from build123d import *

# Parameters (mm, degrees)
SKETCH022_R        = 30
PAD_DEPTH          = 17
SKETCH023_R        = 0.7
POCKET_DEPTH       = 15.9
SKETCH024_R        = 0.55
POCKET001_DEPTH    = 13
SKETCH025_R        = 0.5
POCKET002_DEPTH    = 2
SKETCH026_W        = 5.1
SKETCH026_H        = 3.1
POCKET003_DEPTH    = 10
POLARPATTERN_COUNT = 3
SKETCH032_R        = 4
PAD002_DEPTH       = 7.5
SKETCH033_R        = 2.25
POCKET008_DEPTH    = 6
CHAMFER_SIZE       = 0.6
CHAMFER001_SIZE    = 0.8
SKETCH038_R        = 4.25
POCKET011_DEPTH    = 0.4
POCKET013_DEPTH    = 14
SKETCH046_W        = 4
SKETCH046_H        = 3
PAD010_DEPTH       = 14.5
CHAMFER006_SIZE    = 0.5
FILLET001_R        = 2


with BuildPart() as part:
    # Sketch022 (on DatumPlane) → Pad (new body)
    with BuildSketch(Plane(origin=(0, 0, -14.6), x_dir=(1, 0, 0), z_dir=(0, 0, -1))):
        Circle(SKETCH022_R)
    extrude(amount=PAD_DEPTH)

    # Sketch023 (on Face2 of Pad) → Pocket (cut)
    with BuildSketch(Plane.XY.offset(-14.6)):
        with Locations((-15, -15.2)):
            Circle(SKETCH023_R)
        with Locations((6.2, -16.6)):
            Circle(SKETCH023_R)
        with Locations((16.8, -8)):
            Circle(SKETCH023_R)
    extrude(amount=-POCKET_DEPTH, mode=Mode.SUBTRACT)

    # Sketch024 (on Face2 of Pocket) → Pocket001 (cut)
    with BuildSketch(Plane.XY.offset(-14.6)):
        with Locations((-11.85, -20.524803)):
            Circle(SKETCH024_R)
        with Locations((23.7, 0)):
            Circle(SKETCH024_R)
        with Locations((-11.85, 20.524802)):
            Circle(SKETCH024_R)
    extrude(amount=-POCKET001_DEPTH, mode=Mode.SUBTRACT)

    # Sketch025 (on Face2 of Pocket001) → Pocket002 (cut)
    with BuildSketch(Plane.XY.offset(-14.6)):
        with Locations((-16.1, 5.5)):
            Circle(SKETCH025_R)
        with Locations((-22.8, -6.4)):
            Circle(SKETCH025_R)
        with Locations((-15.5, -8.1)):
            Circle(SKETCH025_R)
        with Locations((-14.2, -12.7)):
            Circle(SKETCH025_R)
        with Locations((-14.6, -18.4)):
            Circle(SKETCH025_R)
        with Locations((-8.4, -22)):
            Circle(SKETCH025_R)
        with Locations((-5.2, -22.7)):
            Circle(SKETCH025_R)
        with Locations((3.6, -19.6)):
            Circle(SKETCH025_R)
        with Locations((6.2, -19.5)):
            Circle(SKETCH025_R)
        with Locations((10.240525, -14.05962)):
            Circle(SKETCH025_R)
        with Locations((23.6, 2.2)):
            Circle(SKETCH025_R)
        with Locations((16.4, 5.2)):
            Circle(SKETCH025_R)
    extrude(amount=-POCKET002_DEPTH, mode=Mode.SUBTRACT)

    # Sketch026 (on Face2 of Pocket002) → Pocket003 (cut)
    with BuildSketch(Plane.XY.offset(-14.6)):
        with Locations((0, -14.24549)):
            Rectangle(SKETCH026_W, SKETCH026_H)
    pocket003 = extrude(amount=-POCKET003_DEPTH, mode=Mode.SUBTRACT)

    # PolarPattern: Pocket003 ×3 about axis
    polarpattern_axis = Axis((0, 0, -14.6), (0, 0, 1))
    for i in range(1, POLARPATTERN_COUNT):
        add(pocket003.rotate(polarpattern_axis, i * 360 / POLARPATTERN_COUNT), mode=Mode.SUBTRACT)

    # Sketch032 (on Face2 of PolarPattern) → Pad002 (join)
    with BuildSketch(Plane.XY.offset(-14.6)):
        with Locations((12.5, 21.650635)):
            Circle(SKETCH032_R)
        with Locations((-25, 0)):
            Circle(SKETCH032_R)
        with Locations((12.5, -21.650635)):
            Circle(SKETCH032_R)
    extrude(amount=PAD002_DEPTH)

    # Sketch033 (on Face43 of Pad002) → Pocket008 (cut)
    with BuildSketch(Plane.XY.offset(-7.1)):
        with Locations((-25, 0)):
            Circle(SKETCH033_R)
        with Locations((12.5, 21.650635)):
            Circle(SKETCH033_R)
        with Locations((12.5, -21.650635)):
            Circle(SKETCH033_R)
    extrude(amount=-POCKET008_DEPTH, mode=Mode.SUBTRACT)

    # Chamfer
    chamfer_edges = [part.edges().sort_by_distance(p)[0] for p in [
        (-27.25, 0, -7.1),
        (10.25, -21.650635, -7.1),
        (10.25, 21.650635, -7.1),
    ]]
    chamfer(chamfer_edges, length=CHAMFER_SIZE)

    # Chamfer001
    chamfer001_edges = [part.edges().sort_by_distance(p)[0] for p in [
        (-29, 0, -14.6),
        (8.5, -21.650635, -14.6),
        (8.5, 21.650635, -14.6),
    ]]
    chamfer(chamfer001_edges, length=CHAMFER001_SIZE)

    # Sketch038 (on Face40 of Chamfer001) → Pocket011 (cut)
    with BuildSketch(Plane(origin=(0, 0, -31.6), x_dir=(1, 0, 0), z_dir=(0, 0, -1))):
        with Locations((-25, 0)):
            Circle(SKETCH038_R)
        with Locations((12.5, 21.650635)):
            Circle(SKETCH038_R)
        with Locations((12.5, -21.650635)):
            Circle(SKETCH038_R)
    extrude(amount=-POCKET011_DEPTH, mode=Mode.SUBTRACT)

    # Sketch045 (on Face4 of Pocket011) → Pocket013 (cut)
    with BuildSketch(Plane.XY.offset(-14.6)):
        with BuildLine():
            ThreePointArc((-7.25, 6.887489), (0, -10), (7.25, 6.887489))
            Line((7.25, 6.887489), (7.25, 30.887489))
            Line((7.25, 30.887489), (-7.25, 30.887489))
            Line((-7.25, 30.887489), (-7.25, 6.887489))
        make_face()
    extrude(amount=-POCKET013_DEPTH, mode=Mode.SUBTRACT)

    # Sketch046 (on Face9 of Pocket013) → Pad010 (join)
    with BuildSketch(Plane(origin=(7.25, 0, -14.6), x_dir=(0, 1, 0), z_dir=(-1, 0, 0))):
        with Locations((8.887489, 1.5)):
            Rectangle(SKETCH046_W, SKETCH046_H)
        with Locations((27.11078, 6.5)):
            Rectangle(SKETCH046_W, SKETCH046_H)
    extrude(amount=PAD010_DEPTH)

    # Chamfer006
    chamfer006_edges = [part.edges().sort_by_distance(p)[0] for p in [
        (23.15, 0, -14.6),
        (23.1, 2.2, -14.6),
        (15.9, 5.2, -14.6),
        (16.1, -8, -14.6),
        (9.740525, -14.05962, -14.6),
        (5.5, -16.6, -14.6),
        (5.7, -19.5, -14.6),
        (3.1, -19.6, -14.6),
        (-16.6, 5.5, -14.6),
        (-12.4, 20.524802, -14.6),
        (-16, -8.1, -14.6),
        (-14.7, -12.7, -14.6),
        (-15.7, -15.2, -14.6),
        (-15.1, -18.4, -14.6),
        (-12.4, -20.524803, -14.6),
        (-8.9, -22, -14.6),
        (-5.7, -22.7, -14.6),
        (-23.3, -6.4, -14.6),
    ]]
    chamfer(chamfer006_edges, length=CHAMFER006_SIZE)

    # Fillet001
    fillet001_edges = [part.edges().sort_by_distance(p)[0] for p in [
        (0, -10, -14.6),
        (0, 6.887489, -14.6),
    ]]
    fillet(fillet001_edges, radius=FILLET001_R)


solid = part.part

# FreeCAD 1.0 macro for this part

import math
import FreeCAD as App
import Part
import Sketcher
from FreeCAD import Vector
Q = App.Units.Quantity


def edges_at(feature, points):
    """Names of the edges that pass closest to the given points."""
    edges = feature.Shape.Edges
    near = lambda p: min(range(len(edges)), key=lambda i: edges[i].distToShape(Part.Vertex(*p))[0])
    return sorted({f"Edge{near(p) + 1}" for p in points})


def add_polygon(sketch, points):
    """Adds a closed chain of lines whose ends are joined by coincident constraints."""
    first, n = sketch.GeometryCount, len(points)
    for a, b in zip(points, points[1:] + points[:1]):
        sketch.addGeometry(Part.LineSegment(App.Vector(*a, 0), App.Vector(*b, 0)), False)
    for i in range(n):
        sketch.addConstraint(Sketcher.Constraint("Coincident", first + i, 2, first + (i + 1) % n, 1))

doc = App.newDocument("Part")
body = doc.addObject("PartDesign::Body", "Body")

# Sketch on XY plane
sketch1 = doc.addObject("Sketcher::SketchObject", "Sketch")
body.addObject(sketch1)
sketch1.AttachmentSupport = (doc.XY_Plane, [""])
sketch1.MapMode = "FlatFace"
sketch1.AttachmentOffset = App.Placement(Vector(0, 0, -14.6), App.Rotation())
sketch1.addGeometry(Part.Circle(Vector(0, 0, 0), Vector(0, 0, 1), 30), False)
sketch1.addConstraint([
    Sketcher.Constraint("Coincident", 0, 3, -1, 1),
    Sketcher.Constraint("Diameter", 0, Q("60 mm")),
])
pad1 = doc.addObject("PartDesign::Pad", "Pad")
body.addObject(pad1)
pad1.Profile = sketch1
pad1.Length = 17
pad1.Reversed = True

# Sketch on XY plane
sketch2 = doc.addObject("Sketcher::SketchObject", "Sketch001")
body.addObject(sketch2)
sketch2.AttachmentSupport = (doc.XY_Plane, [""])
sketch2.MapMode = "FlatFace"
sketch2.AttachmentOffset = App.Placement(Vector(0, 0, -14.6), App.Rotation())
sketch2.addGeometry([
    Part.Circle(Vector(-15, -15.2, 0), Vector(0, 0, 1), 0.7),
    Part.Circle(Vector(6.2, -16.6, 0), Vector(0, 0, 1), 0.7),
    Part.Circle(Vector(16.8, -8, 0), Vector(0, 0, 1), 0.7),
], False)
sketch2.addConstraint([
    Sketcher.Constraint("Equal", 0, 1),
    Sketcher.Constraint("Equal", 1, 2),
    Sketcher.Constraint("Diameter", 0, Q("1.4 mm")),
    Sketcher.Constraint("DistanceX", 0, 3, -1, 1, Q("15 mm")),
    Sketcher.Constraint("DistanceY", 2, 3, -1, 1, Q("8 mm")),
    Sketcher.Constraint("DistanceY", 0, 3, -1, 1, Q("15.2 mm")),
    Sketcher.Constraint("DistanceX", -1, 1, 1, 3, Q("6.2 mm")),
    Sketcher.Constraint("DistanceY", 1, 3, -1, 1, Q("16.6 mm")),
    Sketcher.Constraint("DistanceX", -1, 1, 2, 3, Q("16.8 mm")),
])
pocket1 = doc.addObject("PartDesign::Pocket", "Pocket")
body.addObject(pocket1)
pocket1.Profile = sketch2
pocket1.Length = 15.9

# Sketch on XY plane
sketch3 = doc.addObject("Sketcher::SketchObject", "Sketch002")
body.addObject(sketch3)
sketch3.AttachmentSupport = (doc.XY_Plane, [""])
sketch3.MapMode = "FlatFace"
sketch3.AttachmentOffset = App.Placement(Vector(0, 0, -14.6), App.Rotation())
sketch3.addGeometry([
    Part.Circle(Vector(-11.8, -20.5, 0), Vector(0, 0, 1), 0.6),
    Part.Circle(Vector(23.7, 0, 0), Vector(0, 0, 1), 0.6),
    Part.Circle(Vector(-11.8, 20.5, 0), Vector(0, 0, 1), 0.6),
], False)
sketch3.addConstraint([
    Sketcher.Constraint("Equal", 0, 1),
    Sketcher.Constraint("Equal", 1, 2),
    Sketcher.Constraint("Symmetric", 0, 3, 2, 3, -1),
    Sketcher.Constraint("PointOnObject", 1, 3, -1),
    Sketcher.Constraint("Diameter", 0, Q("1.1 mm")),
    Sketcher.Constraint("DistanceX", -1, 1, 1, 3, Q("23.7 mm")),
    Sketcher.Constraint("DistanceX", 0, 3, -1, 1, Q("11.85 mm")),
    Sketcher.Constraint("DistanceY", 0, 3, -1, 1, Q("20.524803 mm")),
])
pocket2 = doc.addObject("PartDesign::Pocket", "Pocket001")
body.addObject(pocket2)
pocket2.Profile = sketch3
pocket2.Length = 13

# Sketch on XY plane
sketch4 = doc.addObject("Sketcher::SketchObject", "Sketch003")
body.addObject(sketch4)
sketch4.AttachmentSupport = (doc.XY_Plane, [""])
sketch4.MapMode = "FlatFace"
sketch4.AttachmentOffset = App.Placement(Vector(0, 0, -14.6), App.Rotation())
sketch4.addGeometry([
    Part.Circle(Vector(-16.1, 5.5, 0), Vector(0, 0, 1), 0.5),  # 0
    Part.Circle(Vector(-22.8, -6.4, 0), Vector(0, 0, 1), 0.5),  # 1
    Part.Circle(Vector(-15.5, -8.1, 0), Vector(0, 0, 1), 0.5),  # 2
    Part.Circle(Vector(-14.2, -12.7, 0), Vector(0, 0, 1), 0.5),  # 3
    Part.Circle(Vector(-14.6, -18.4, 0), Vector(0, 0, 1), 0.5),  # 4
    Part.Circle(Vector(-8.4, -22, 0), Vector(0, 0, 1), 0.5),  # 5
    Part.Circle(Vector(-5.2, -22.7, 0), Vector(0, 0, 1), 0.5),  # 6
    Part.Circle(Vector(3.6, -19.6, 0), Vector(0, 0, 1), 0.5),  # 7
    Part.Circle(Vector(6.2, -19.5, 0), Vector(0, 0, 1), 0.5),  # 8
    Part.Circle(Vector(10.2, -14.1, 0), Vector(0, 0, 1), 0.5),  # 9
    Part.Circle(Vector(23.6, 2.2, 0), Vector(0, 0, 1), 0.5),  # 10
    Part.Circle(Vector(16.4, 5.2, 0), Vector(0, 0, 1), 0.5),  # 11
], False)
sketch4.addConstraint([
    Sketcher.Constraint("Equal", 0, 1),
    Sketcher.Constraint("Equal", 1, 2),
    Sketcher.Constraint("Equal", 2, 3),
    Sketcher.Constraint("Equal", 3, 4),
    Sketcher.Constraint("Equal", 4, 5),
    Sketcher.Constraint("Equal", 5, 6),
    Sketcher.Constraint("Equal", 6, 7),
    Sketcher.Constraint("Equal", 7, 8),
    Sketcher.Constraint("Equal", 8, 9),
    Sketcher.Constraint("Equal", 9, 10),
    Sketcher.Constraint("Equal", 10, 11),
    Sketcher.Constraint("Diameter", 0, Q("1 mm")),
    Sketcher.Constraint("DistanceY", 5, 3, -1, 1, Q("22 mm")),
    Sketcher.Constraint("DistanceY", 4, 3, 1, 3, Q("12 mm")),
    Sketcher.Constraint("DistanceX", 3, 3, 6, 3, Q("9 mm")),
    Sketcher.Constraint("DistanceY", 6, 3, 3, 3, Q("10 mm")),
    Sketcher.Constraint("DistanceX", 5, 3, 7, 3, Q("12 mm")),
    Sketcher.Constraint("DistanceX", 7, 3, 10, 3, Q("20 mm")),
    Sketcher.Constraint("DistanceY", 10, 3, 11, 3, Q("3 mm")),
    Sketcher.Constraint("DistanceX", 0, 3, -1, 1, Q("16.1 mm")),
    Sketcher.Constraint("DistanceY", -1, 1, 0, 3, Q("5.5 mm")),
    Sketcher.Constraint("DistanceX", 1, 3, -1, 1, Q("22.8 mm")),
    Sketcher.Constraint("DistanceY", 1, 3, -1, 1, Q("6.4 mm")),
    Sketcher.Constraint("DistanceX", 2, 3, -1, 1, Q("15.5 mm")),
    Sketcher.Constraint("DistanceY", 2, 3, -1, 1, Q("8.1 mm")),
    Sketcher.Constraint("DistanceX", 3, 3, -1, 1, Q("14.2 mm")),
    Sketcher.Constraint("DistanceY", 3, 3, -1, 1, Q("12.7 mm")),
    Sketcher.Constraint("DistanceX", 4, 3, -1, 1, Q("14.6 mm")),
    Sketcher.Constraint("DistanceX", 5, 3, -1, 1, Q("8.4 mm")),
    Sketcher.Constraint("DistanceY", 7, 3, -1, 1, Q("19.6 mm")),
    Sketcher.Constraint("DistanceX", -1, 1, 8, 3, Q("6.2 mm")),
    Sketcher.Constraint("DistanceY", 8, 3, -1, 1, Q("19.5 mm")),
    Sketcher.Constraint("DistanceY", -1, 1, 10, 3, Q("2.2 mm")),
    Sketcher.Constraint("DistanceX", -1, 1, 11, 3, Q("16.4 mm")),
    Sketcher.Constraint("DistanceY", 9, 3, -1, 1, Q("14.05962 mm")),
    Sketcher.Constraint("DistanceX", -1, 1, 9, 3, Q("10.240525 mm")),
])
pocket3 = doc.addObject("PartDesign::Pocket", "Pocket002")
body.addObject(pocket3)
pocket3.Profile = sketch4
pocket3.Length = 2

# Sketch on XY plane
sketch5 = doc.addObject("Sketcher::SketchObject", "Sketch004")
body.addObject(sketch5)
sketch5.AttachmentSupport = (doc.XY_Plane, [""])
sketch5.MapMode = "FlatFace"
sketch5.AttachmentOffset = App.Placement(Vector(0, 0, -14.6), App.Rotation())
add_polygon(sketch5, [(-2.5, -12.7), (-2.5, -15.8), (2.5, -15.8), (2.5, -12.7)])  # lines 0-3
sketch5.addConstraint([
    Sketcher.Constraint("Vertical", 0),
    Sketcher.Constraint("Horizontal", 1),
    Sketcher.Constraint("Vertical", 2),
    Sketcher.Constraint("Horizontal", 3),
    Sketcher.Constraint("DistanceX", 1, 1, 1, 2, Q("5.1 mm")),
    Sketcher.Constraint("DistanceY", 0, 2, 0, 1, Q("3.1 mm")),
    Sketcher.Constraint("DistanceX", 0, 2, -1, 1, Q("2.55 mm")),
    Sketcher.Constraint("DistanceY", 0, 2, -1, 1, Q("15.79549 mm")),
])
pocket4 = doc.addObject("PartDesign::Pocket", "Pocket003")
body.addObject(pocket4)
pocket4.Profile = sketch5
pocket4.Length = 10
doc.recompute()

polarpattern = doc.addObject("PartDesign::PolarPattern", "PolarPattern")
body.addObject(polarpattern)
polarpattern.Originals = [pocket4]
polarpattern.Axis = (doc.Z_Axis, [""])
polarpattern.Angle = 360
polarpattern.Occurrences = 3
body.Tip = polarpattern

# Sketch on XY plane
sketch6 = doc.addObject("Sketcher::SketchObject", "Sketch005")
body.addObject(sketch6)
sketch6.AttachmentSupport = (doc.XY_Plane, [""])
sketch6.MapMode = "FlatFace"
sketch6.AttachmentOffset = App.Placement(Vector(0, 0, -14.6), App.Rotation())
sketch6.addGeometry([
    Part.Circle(Vector(12.5, 21.7, 0), Vector(0, 0, 1), 4),
    Part.Circle(Vector(-25, 0, 0), Vector(0, 0, 1), 4),
    Part.Circle(Vector(12.5, -21.7, 0), Vector(0, 0, 1), 4),
], False)
sketch6.addConstraint([
    Sketcher.Constraint("Equal", 0, 1),
    Sketcher.Constraint("Equal", 1, 2),
    Sketcher.Constraint("Symmetric", 0, 3, 2, 3, -1),
    Sketcher.Constraint("PointOnObject", 1, 3, -1),
    Sketcher.Constraint("Diameter", 0, Q("8 mm")),
    Sketcher.Constraint("DistanceX", 1, 3, -1, 1, Q("25 mm")),
    Sketcher.Constraint("DistanceX", -1, 1, 0, 3, Q("12.5 mm")),
    Sketcher.Constraint("DistanceY", 2, 3, 0, 3, Q("43.30127 mm")),
])
pad2 = doc.addObject("PartDesign::Pad", "Pad001")
body.addObject(pad2)
pad2.Profile = sketch6
pad2.Length = 7.5

# Sketch on XY plane
sketch7 = doc.addObject("Sketcher::SketchObject", "Sketch006")
body.addObject(sketch7)
sketch7.AttachmentSupport = (doc.XY_Plane, [""])
sketch7.MapMode = "FlatFace"
sketch7.AttachmentOffset = App.Placement(Vector(0, 0, -7.1), App.Rotation())
sketch7.addGeometry([
    Part.Circle(Vector(-25, 0, 0), Vector(0, 0, 1), 2.2),
    Part.Circle(Vector(12.5, 21.7, 0), Vector(0, 0, 1), 2.2),
    Part.Circle(Vector(12.5, -21.7, 0), Vector(0, 0, 1), 2.2),
], False)
sketch7.addConstraint([
    Sketcher.Constraint("Equal", 0, 1),
    Sketcher.Constraint("Equal", 1, 2),
    Sketcher.Constraint("Symmetric", 1, 3, 2, 3, -1),
    Sketcher.Constraint("PointOnObject", 0, 3, -1),
    Sketcher.Constraint("Diameter", 0, Q("4.5 mm")),
    Sketcher.Constraint("DistanceX", 0, 3, -1, 1, Q("25 mm")),
    Sketcher.Constraint("DistanceX", -1, 1, 1, 3, Q("12.5 mm")),
    Sketcher.Constraint("DistanceY", 2, 3, 1, 3, Q("43.30127 mm")),
])
pocket5 = doc.addObject("PartDesign::Pocket", "Pocket004")
body.addObject(pocket5)
pocket5.Profile = sketch7
pocket5.Length = 6
doc.recompute()

chamfer = doc.addObject("PartDesign::Chamfer", "Chamfer")
body.addObject(chamfer)
chamfer.Base = (pocket5, edges_at(pocket5, [(-27.25, 0, -7.1), (10.25, -21.651, -7.1), (10.25, 21.651, -7.1)]))
chamfer.Size = 0.6
doc.recompute()

chamfer2 = doc.addObject("PartDesign::Chamfer", "Chamfer001")
body.addObject(chamfer2)
chamfer2.Base = (chamfer, edges_at(chamfer, [(-29, 0, -14.6), (8.5, -21.651, -14.6), (8.5, 21.651, -14.6)]))
chamfer2.Size = 0.8

# Sketch on XY plane
sketch8 = doc.addObject("Sketcher::SketchObject", "Sketch007")
body.addObject(sketch8)
sketch8.AttachmentSupport = (doc.XY_Plane, [""])
sketch8.MapMode = "FlatFace"
sketch8.AttachmentOffset = App.Placement(Vector(0, 0, -31.6), App.Rotation())
sketch8.addGeometry([
    Part.Circle(Vector(-25, 0, 0), Vector(0, 0, 1), 4.2),
    Part.Circle(Vector(12.5, -21.7, 0), Vector(0, 0, 1), 4.2),
    Part.Circle(Vector(12.5, 21.7, 0), Vector(0, 0, 1), 4.2),
], False)
sketch8.addConstraint([
    Sketcher.Constraint("Equal", 0, 1),
    Sketcher.Constraint("Equal", 1, 2),
    Sketcher.Constraint("Symmetric", 1, 3, 2, 3, -1),
    Sketcher.Constraint("PointOnObject", 0, 3, -1),
    Sketcher.Constraint("Diameter", 0, Q("8.5 mm")),
    Sketcher.Constraint("DistanceX", 0, 3, -1, 1, Q("25 mm")),
    Sketcher.Constraint("DistanceX", -1, 1, 1, 3, Q("12.5 mm")),
    Sketcher.Constraint("DistanceY", 1, 3, 2, 3, Q("43.30127 mm")),
])
pocket6 = doc.addObject("PartDesign::Pocket", "Pocket005")
body.addObject(pocket6)
pocket6.Profile = sketch8
pocket6.Length = 0.4
pocket6.Reversed = True

# Sketch on XY plane
sketch9 = doc.addObject("Sketcher::SketchObject", "Sketch008")
body.addObject(sketch9)
sketch9.AttachmentSupport = (doc.XY_Plane, [""])
sketch9.MapMode = "FlatFace"
sketch9.AttachmentOffset = App.Placement(Vector(0, 0, -14.6), App.Rotation())
sketch9.addGeometry([
    Part.ArcOfCircle(Part.Circle(Vector(0, 0, 0), Vector(0, 0, 1), 10), math.radians(136), math.radians(404)),
    Part.LineSegment(Vector(7, 7, 0), Vector(7, 31, 0)),
    Part.LineSegment(Vector(7, 31, 0), Vector(-7, 31, 0)),
    Part.LineSegment(Vector(-7, 31, 0), Vector(-7, 7, 0)),
], False)
sketch9.addConstraint([
    Sketcher.Constraint("Coincident", 0, 2, 1, 1),
    Sketcher.Constraint("Coincident", 1, 2, 2, 1),
    Sketcher.Constraint("Coincident", 2, 2, 3, 1),
    Sketcher.Constraint("Coincident", 3, 2, 0, 1),
    Sketcher.Constraint("Vertical", 1),
    Sketcher.Constraint("Horizontal", 2),
    Sketcher.Constraint("Vertical", 3),
    Sketcher.Constraint("Coincident", 0, 3, -1, 1),
    Sketcher.Constraint("Horizontal", 0, 2, 3, 2),
    Sketcher.Constraint("Radius", 0, Q("10 mm")),
    Sketcher.Constraint("DistanceY", 1, 1, 1, 2, Q("24 mm")),
    Sketcher.Constraint("DistanceX", 2, 2, 2, 1, Q("14.5 mm")),
])
pocket7 = doc.addObject("PartDesign::Pocket", "Pocket006")
body.addObject(pocket7)
pocket7.Profile = sketch9
pocket7.Length = 14

# Sketch on YZ plane
sketch10 = doc.addObject("Sketcher::SketchObject", "Sketch009")
body.addObject(sketch10)
sketch10.AttachmentSupport = (doc.YZ_Plane, [""])
sketch10.MapMode = "FlatFace"
sketch10.AttachmentOffset = App.Placement(Vector(0, 0, 7.25), App.Rotation())
add_polygon(sketch10, [(6.9, -17.6), (6.9, -14.6), (10.9, -14.6), (10.9, -17.6)])  # lines 0-3
add_polygon(sketch10, [(25.1, -22.6), (25.1, -19.6), (29.1, -19.6), (29.1, -22.6)])  # lines 4-7
sketch10.addConstraint([
    Sketcher.Constraint("Vertical", 0),
    Sketcher.Constraint("Horizontal", 1),
    Sketcher.Constraint("Vertical", 2),
    Sketcher.Constraint("Horizontal", 3),
    Sketcher.Constraint("Vertical", 4),
    Sketcher.Constraint("Horizontal", 5),
    Sketcher.Constraint("Vertical", 6),
    Sketcher.Constraint("Horizontal", 7),
    Sketcher.Constraint("Equal", 3, 5),
    Sketcher.Constraint("Equal", 2, 4),
    Sketcher.Constraint("DistanceX", 1, 1, 1, 2, Q("4 mm")),
    Sketcher.Constraint("DistanceY", 0, 1, 0, 2, Q("3 mm")),
    Sketcher.Constraint("DistanceY", 4, 2, 2, 2, Q("2 mm")),
    Sketcher.Constraint("DistanceY", 0, 2, -1, 1, Q("14.6 mm")),
    Sketcher.Constraint("DistanceX", -1, 1, 0, 2, Q("6.887489 mm")),
    Sketcher.Constraint("DistanceX", -1, 1, 4, 2, Q("25.11078 mm")),
])
pad3 = doc.addObject("PartDesign::Pad", "Pad002")
body.addObject(pad3)
pad3.Profile = sketch10
pad3.Length = 14.5
pad3.Reversed = True
doc.recompute()

chamfer3 = doc.addObject("PartDesign::Chamfer", "Chamfer002")
body.addObject(chamfer3)
chamfer3.Base = (pad3, edges_at(pad3, [
    (23.15, 0, -14.6),
    (23.1, 2.2, -14.6),
    (15.9, 5.2, -14.6),
    (16.1, -8, -14.6),
    (9.741, -14.06, -14.6),
    (5.5, -16.6, -14.6),
    (5.7, -19.5, -14.6),
    (3.1, -19.6, -14.6),
    (-16.6, 5.5, -14.6),
    (-12.4, 20.525, -14.6),
    (-16, -8.1, -14.6),
    (-14.7, -12.7, -14.6),
    (-15.7, -15.2, -14.6),
    (-15.1, -18.4, -14.6),
    (-12.4, -20.525, -14.6),
    (-8.9, -22, -14.6),
    (-5.7, -22.7, -14.6),
    (-23.3, -6.4, -14.6),
]))
chamfer3.Size = 0.5
doc.recompute()

fillet = doc.addObject("PartDesign::Fillet", "Fillet")
body.addObject(fillet)
fillet.Base = (chamfer3, edges_at(chamfer3, [(0, -10, -14.6), (0, 6.887, -14.6)]))
fillet.Radius = 2

doc.recompute()
